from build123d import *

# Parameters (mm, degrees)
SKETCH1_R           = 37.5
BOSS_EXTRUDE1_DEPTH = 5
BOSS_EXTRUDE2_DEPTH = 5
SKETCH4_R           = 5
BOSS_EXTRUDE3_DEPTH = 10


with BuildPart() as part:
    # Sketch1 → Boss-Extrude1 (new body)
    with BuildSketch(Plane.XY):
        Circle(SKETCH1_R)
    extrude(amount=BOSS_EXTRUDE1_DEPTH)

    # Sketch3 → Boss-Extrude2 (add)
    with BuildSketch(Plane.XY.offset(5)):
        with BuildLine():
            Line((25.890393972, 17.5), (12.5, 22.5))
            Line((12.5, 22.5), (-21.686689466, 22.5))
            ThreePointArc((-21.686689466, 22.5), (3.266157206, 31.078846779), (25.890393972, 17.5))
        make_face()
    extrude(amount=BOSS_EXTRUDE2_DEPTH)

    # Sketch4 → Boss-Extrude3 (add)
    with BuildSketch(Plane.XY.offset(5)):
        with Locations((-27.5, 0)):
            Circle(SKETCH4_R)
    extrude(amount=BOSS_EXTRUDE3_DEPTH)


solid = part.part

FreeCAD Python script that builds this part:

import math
import FreeCAD as App
import Part
import Sketcher

V = App.Vector

doc = App.newDocument("Part")
params = doc.addObject("Spreadsheet::Sheet", "Params")
for row, (alias, value) in enumerate([
    ("sketch1_diameter", "75 mm"),
    ("pad1_length", "5 mm"),
    ("sketch2_radius", "31.25 mm"),
    ("pad2_length", "5 mm"),
    ("sketch3_diameter", "10 mm"),
    ("pad3_length", "10 mm"),
], start=1):
    params.set(f"A{row}", alias)
    params.set(f"B{row}", "=" + value)
    params.setAlias(f"B{row}", alias)

body = doc.addObject("PartDesign::Body", "Body")

sketch1 = body.newObject("Sketcher::SketchObject", "Sketch")
sketch1.AttachmentSupport = (doc.getObject("XY_Plane"), [""])
sketch1.MapMode = "FlatFace"
sketch1.addGeometry(Part.Circle(V(0, 0, 0), V(0, 0, 1), 38), False)
sketch1.addConstraint(Sketcher.Constraint("Coincident", 0, 3, -1, 1))
sketch1.addConstraint(Sketcher.Constraint("Diameter", 0, 75.0))
sketch1.setExpression("Constraints[1]", "Params.sketch1_diameter")
pad1 = body.newObject("PartDesign::Pad", "Pad")
pad1.Profile = sketch1
pad1.setExpression("Length", "Params.pad1_length")

sketch2 = body.newObject("Sketcher::SketchObject", "Sketch001")
sketch2.AttachmentSupport = (doc.getObject("XY_Plane"), [""])
sketch2.MapMode = "FlatFace"
sketch2.AttachmentOffset = App.Placement(V(0, 0, 5), App.Rotation())
sketch2.addGeometry(Part.LineSegment(V(12, 22, 0), V(26, 18, 0)), False)
sketch2.addGeometry(Part.ArcOfCircle(Part.Circle(V(0, 0, 0), V(0, 0, 1), 31), math.radians(34), math.radians(134)), False)
sketch2.addGeometry(Part.LineSegment(V(-22, 22, 0), V(12, 22, 0)), False)
sketch2.addConstraint(Sketcher.Constraint("Coincident", 0, 2, 1, 1))
sketch2.addConstraint(Sketcher.Constraint("Coincident", 1, 2, 2, 1))
sketch2.addConstraint(Sketcher.Constraint("Coincident", 2, 2, 0, 1))
sketch2.addConstraint(Sketcher.Constraint("Horizontal", 2))
sketch2.addConstraint(Sketcher.Constraint("Coincident", 1, 3, -1, 1))
sketch2.addConstraint(Sketcher.Constraint("Radius", 1, 31.25))
sketch2.addConstraint(Sketcher.Constraint("DistanceY", 0, 2, 1, 2, 5.0))
sketch2.addConstraint(Sketcher.Constraint("DistanceY", -1, 1, 0, 2, 17.5))
sketch2.addConstraint(Sketcher.Constraint("DistanceX", -1, 1, 2, 2, 12.5))
sketch2.setExpression("Constraints[5]", "Params.sketch2_radius")
pad2 = body.newObject("PartDesign::Pad", "Pad001")
pad2.Profile = sketch2
pad2.setExpression("Length", "Params.pad2_length")

sketch3 = body.newObject("Sketcher::SketchObject", "Sketch002")
sketch3.AttachmentSupport = (doc.getObject("XY_Plane"), [""])
sketch3.MapMode = "FlatFace"
sketch3.AttachmentOffset = App.Placement(V(0, 0, 5), App.Rotation())
sketch3.addGeometry(Part.Circle(V(-28, 0, 0), V(0, 0, 1), 5), False)
sketch3.addConstraint(Sketcher.Constraint("PointOnObject", 0, 3, -1))
sketch3.addConstraint(Sketcher.Constraint("Diameter", 0, 10.0))
sketch3.addConstraint(Sketcher.Constraint("DistanceX", 0, 3, -1, 1, 27.5))
sketch3.setExpression("Constraints[1]", "Params.sketch3_diameter")
pad3 = body.newObject("PartDesign::Pad", "Pad002")
pad3.Profile = sketch3
pad3.setExpression("Length", "Params.pad3_length")

doc.recompute()
